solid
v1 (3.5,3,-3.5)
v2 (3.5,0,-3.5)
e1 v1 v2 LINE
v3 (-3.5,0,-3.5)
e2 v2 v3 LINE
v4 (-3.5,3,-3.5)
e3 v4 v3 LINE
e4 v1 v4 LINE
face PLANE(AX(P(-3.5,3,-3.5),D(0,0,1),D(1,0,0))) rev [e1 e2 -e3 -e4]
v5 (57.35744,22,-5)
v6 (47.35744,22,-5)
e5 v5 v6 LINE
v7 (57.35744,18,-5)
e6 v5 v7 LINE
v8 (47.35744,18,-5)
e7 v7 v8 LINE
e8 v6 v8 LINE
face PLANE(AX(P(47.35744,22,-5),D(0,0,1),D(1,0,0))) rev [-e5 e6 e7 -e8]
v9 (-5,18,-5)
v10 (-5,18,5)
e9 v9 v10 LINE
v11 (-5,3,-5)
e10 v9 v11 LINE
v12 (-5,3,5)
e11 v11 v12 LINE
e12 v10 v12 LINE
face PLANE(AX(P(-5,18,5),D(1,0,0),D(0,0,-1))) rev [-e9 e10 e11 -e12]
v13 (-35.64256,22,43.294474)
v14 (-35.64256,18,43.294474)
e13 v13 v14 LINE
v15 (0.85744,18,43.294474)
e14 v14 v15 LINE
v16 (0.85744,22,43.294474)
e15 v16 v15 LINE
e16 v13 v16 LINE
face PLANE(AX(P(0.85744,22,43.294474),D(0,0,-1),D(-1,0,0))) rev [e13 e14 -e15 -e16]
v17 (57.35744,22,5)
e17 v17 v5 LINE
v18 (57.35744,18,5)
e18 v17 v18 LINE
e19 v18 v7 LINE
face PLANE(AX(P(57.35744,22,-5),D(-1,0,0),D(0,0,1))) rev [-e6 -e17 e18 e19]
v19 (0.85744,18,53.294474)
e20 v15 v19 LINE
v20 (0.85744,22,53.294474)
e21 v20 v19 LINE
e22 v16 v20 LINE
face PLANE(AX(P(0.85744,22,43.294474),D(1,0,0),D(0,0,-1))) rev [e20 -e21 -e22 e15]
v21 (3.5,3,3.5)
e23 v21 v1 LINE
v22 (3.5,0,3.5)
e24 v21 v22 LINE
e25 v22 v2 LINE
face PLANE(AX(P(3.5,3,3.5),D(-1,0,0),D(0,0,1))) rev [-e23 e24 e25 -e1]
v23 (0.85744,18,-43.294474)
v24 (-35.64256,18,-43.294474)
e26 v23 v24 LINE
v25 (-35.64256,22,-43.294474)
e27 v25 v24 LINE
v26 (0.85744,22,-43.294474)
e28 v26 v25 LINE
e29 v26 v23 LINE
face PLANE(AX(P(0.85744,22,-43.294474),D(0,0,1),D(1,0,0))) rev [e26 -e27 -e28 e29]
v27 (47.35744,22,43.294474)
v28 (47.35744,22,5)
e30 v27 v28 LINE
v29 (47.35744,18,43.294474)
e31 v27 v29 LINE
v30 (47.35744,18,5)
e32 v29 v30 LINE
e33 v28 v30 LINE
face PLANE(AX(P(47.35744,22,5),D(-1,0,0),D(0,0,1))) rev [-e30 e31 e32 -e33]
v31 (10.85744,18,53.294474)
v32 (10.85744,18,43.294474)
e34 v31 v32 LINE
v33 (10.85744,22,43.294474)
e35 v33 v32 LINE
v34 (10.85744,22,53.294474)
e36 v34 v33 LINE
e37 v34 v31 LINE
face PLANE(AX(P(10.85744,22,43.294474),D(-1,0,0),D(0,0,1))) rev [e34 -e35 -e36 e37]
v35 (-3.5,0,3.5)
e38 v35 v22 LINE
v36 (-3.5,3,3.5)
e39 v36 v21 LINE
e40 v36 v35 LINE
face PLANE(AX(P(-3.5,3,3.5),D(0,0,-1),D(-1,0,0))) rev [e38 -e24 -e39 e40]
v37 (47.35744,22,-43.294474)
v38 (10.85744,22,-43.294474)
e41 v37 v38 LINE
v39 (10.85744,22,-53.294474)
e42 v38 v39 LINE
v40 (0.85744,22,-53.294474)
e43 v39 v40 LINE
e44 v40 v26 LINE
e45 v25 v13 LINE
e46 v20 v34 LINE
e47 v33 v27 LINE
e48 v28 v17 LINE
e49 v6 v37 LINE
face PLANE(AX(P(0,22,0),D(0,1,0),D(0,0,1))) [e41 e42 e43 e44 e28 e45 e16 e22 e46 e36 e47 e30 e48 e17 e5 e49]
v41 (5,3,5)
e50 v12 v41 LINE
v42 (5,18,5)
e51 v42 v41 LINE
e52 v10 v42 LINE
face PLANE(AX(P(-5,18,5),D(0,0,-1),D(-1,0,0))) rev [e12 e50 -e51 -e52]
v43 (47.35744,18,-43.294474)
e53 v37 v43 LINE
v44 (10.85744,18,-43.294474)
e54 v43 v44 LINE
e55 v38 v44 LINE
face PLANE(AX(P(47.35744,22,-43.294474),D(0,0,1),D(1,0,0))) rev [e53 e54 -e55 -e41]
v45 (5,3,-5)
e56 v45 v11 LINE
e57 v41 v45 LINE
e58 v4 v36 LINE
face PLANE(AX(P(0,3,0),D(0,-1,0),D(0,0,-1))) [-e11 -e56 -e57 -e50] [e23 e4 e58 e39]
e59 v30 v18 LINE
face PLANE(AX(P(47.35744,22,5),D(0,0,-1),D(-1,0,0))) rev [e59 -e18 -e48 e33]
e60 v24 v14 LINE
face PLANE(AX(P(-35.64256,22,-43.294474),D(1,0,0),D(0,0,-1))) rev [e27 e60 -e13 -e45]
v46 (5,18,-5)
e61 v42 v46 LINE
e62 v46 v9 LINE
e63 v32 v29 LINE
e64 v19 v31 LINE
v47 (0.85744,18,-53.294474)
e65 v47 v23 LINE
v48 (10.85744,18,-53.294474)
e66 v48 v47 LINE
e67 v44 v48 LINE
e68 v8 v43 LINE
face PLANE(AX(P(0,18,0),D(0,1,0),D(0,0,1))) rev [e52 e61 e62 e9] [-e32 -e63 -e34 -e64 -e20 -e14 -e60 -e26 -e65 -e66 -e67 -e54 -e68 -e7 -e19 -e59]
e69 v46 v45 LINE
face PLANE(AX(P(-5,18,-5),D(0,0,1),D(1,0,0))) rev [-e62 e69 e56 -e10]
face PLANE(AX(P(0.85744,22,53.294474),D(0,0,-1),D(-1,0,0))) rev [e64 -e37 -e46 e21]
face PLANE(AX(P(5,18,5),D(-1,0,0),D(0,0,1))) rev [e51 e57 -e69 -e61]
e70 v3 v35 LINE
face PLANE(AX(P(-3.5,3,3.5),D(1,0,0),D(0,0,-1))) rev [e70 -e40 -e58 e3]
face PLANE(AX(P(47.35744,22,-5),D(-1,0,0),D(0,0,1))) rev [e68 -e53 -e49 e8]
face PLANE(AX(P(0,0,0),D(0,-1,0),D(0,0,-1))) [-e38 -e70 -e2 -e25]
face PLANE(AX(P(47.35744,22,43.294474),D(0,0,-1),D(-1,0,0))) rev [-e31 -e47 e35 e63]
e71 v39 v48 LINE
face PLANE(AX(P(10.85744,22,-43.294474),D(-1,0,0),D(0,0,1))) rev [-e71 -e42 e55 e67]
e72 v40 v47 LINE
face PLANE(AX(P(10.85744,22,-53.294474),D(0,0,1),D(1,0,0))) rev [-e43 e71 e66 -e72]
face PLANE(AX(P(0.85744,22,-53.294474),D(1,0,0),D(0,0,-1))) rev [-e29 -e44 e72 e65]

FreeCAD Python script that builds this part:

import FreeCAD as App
import Part
import Sketcher

V = App.Vector

doc = App.newDocument("Part")
params = doc.addObject("Spreadsheet::Sheet", "Params")
for row, (alias, value) in enumerate([
    ("sketch1_width", "7 mm"),
    ("pad1_length", "3 mm"),
    ("sketch2_width", "10 mm"),
    ("pad2_length", "15 mm"),
    ("sketch3_width", "10 mm"),
    ("sketch3_width2", "36.5 mm"),
    ("pad3_length", "4 mm"),
], start=1):
    params.set(f"A{row}", alias)
    params.set(f"B{row}", "=" + value)
    params.setAlias(f"B{row}", alias)

body = doc.addObject("PartDesign::Body", "Body")

# Sketch on XZ plane
sketch1 = doc.addObject("Sketcher::SketchObject", "Sketch")
body.addObject(sketch1)
sketch1.AttachmentSupport = (doc.XZ_Plane, [""])
sketch1.MapMode = "FlatFace"
sketch1.addGeometry([
    Part.LineSegment(V(-4, -4, 0), V(-4, 4, 0)),
    Part.LineSegment(V(-4, 4, 0), V(4, 4, 0)),
    Part.LineSegment(V(4, 4, 0), V(4, -4, 0)),
    Part.LineSegment(V(4, -4, 0), V(-4, -4, 0)),
], False)
sketch1.addConstraint([
    Sketcher.Constraint("Coincident", 0, 2, 1, 1),
    Sketcher.Constraint("Coincident", 1, 2, 2, 1),
    Sketcher.Constraint("Coincident", 2, 2, 3, 1),
    Sketcher.Constraint("Coincident", 3, 2, 0, 1),
    Sketcher.Constraint("Vertical", 0),
    Sketcher.Constraint("Horizontal", 1),
    Sketcher.Constraint("Vertical", 2),
    Sketcher.Constraint("Horizontal", 3),
    Sketcher.Constraint("Symmetric", 0, 2, 2, 2, -1, 1),
    Sketcher.Constraint("Equal", 3, 0),
    Sketcher.Constraint("DistanceX", 1, 1, 1, 2, 7.0),
])
sketch1.setExpression("Constraints[10]", "Params.sketch1_width")
pad1 = doc.addObject("PartDesign::Pad", "Pad")
body.addObject(pad1)
pad1.Profile = sketch1
pad1.setExpression("Length", "Params.pad1_length")
pad1.Reversed = True

# Sketch on XZ plane
sketch2 = doc.addObject("Sketcher::SketchObject", "Sketch001")
body.addObject(sketch2)
sketch2.AttachmentSupport = (doc.XZ_Plane, [""])
sketch2.MapMode = "FlatFace"
sketch2.AttachmentOffset = App.Placement(V(0, 0, -3), App.Rotation())
sketch2.addGeometry([
    Part.LineSegment(V(-5, -5, 0), V(-5, 5, 0)),
    Part.LineSegment(V(-5, 5, 0), V(5, 5, 0)),
    Part.LineSegment(V(5, 5, 0), V(5, -5, 0)),
    Part.LineSegment(V(5, -5, 0), V(-5, -5, 0)),
], False)
sketch2.addConstraint([
    Sketcher.Constraint("Coincident", 0, 2, 1, 1),
    Sketcher.Constraint("Coincident", 1, 2, 2, 1),
    Sketcher.Constraint("Coincident", 2, 2, 3, 1),
    Sketcher.Constraint("Coincident", 3, 2, 0, 1),
    Sketcher.Constraint("Vertical", 0),
    Sketcher.Constraint("Horizontal", 1),
    Sketcher.Constraint("Vertical", 2),
    Sketcher.Constraint("Horizontal", 3),
    Sketcher.Constraint("Symmetric", 0, 2, 2, 2, -1, 1),
    Sketcher.Constraint("Equal", 3, 0),
    Sketcher.Constraint("DistanceX", 1, 1, 1, 2, 10.0),
])
sketch2.setExpression("Constraints[10]", "Params.sketch2_width")
pad2 = doc.addObject("PartDesign::Pad", "Pad001")
body.addObject(pad2)
pad2.Profile = sketch2
pad2.setExpression("Length", "Params.pad2_length")
pad2.Reversed = True

# Sketch on XZ plane
sketch3 = doc.addObject("Sketcher::SketchObject", "Sketch002")
body.addObject(sketch3)
sketch3.AttachmentSupport = (doc.XZ_Plane, [""])
sketch3.MapMode = "FlatFace"
sketch3.AttachmentOffset = App.Placement(V(0, 0, -18), App.Rotation())
sketch3.addGeometry([
    Part.LineSegment(V(11, -43, 0), V(11, -53, 0)),  # 0
    Part.LineSegment(V(11, -53, 0), V(1, -53, 0)),  # 1
    Part.LineSegment(V(1, -53, 0), V(1, -43, 0)),  # 2
    Part.LineSegment(V(1, -43, 0), V(-36, -43, 0)),  # 3
    Part.LineSegment(V(-36, -43, 0), V(-36, 43, 0)),  # 4
    Part.LineSegment(V(-36, 43, 0), V(1, 43, 0)),  # 5
    Part.LineSegment(V(1, 43, 0), V(1, 53, 0)),  # 6
    Part.LineSegment(V(1, 53, 0), V(11, 53, 0)),  # 7
    Part.LineSegment(V(11, 53, 0), V(11, 43, 0)),  # 8
    Part.LineSegment(V(11, 43, 0), V(47, 43, 0)),  # 9
    Part.LineSegment(V(47, 43, 0), V(47, 5, 0)),  # 10
    Part.LineSegment(V(47, 5, 0), V(57, 5, 0)),  # 11
    Part.LineSegment(V(57, 5, 0), V(57, -5, 0)),  # 12
    Part.LineSegment(V(57, -5, 0), V(47, -5, 0)),  # 13
    Part.LineSegment(V(47, -5, 0), V(47, -43, 0)),  # 14
    Part.LineSegment(V(47, -43, 0), V(11, -43, 0)),  # 15
], False)
sketch3.addConstraint([
    Sketcher.Constraint("Coincident", 0, 2, 1, 1),
    Sketcher.Constraint("Coincident", 1, 2, 2, 1),
    Sketcher.Constraint("Coincident", 2, 2, 3, 1),
    Sketcher.Constraint("Coincident", 3, 2, 4, 1),
    Sketcher.Constraint("Coincident", 4, 2, 5, 1),
    Sketcher.Constraint("Coincident", 5, 2, 6, 1),
    Sketcher.Constraint("Coincident", 6, 2, 7, 1),
    Sketcher.Constraint("Coincident", 7, 2, 8, 1),
    Sketcher.Constraint("Coincident", 8, 2, 9, 1),
    Sketcher.Constraint("Coincident", 9, 2, 10, 1),
    Sketcher.Constraint("Coincident", 10, 2, 11, 1),
    Sketcher.Constraint("Coincident", 11, 2, 12, 1),
    Sketcher.Constraint("Coincident", 12, 2, 13, 1),
    Sketcher.Constraint("Coincident", 13, 2, 14, 1),
    Sketcher.Constraint("Coincident", 14, 2, 15, 1),
    Sketcher.Constraint("Coincident", 15, 2, 0, 1),
    Sketcher.Constraint("Vertical", 0),
    Sketcher.Constraint("Horizontal", 1),
    Sketcher.Constraint("Vertical", 2),
    Sketcher.Constraint("Horizontal", 3),
    Sketcher.Constraint("Vertical", 4),
    Sketcher.Constraint("Horizontal", 5),
    Sketcher.Constraint("Vertical", 6),
    Sketcher.Constraint("Horizontal", 7),
    Sketcher.Constraint("Vertical", 8),
    Sketcher.Constraint("Horizontal", 9),
    Sketcher.Constraint("Vertical", 10),
    Sketcher.Constraint("Horizontal", 11),
    Sketcher.Constraint("Vertical", 12),
    Sketcher.Constraint("Horizontal", 13),
    Sketcher.Constraint("Vertical", 14),
    Sketcher.Constraint("Horizontal", 15),
    Sketcher.Constraint("Symmetric", 2, 2, 5, 2, -1),
    Sketcher.Constraint("Symmetric", 0, 2, 7, 2, -1),
    Sketcher.Constraint("Symmetric", 10, 2, 13, 2, -1),
    Sketcher.Constraint("Horizontal", 5, 2, 8, 2),
    Sketcher.Constraint("Horizontal", 3, 2, 14, 2),
    Sketcher.Constraint("Equal", 5, 9),
    Sketcher.Constraint("Equal", 7, 11),
    Sketcher.Constraint("Equal", 13, 0),
    Sketcher.Constraint("Equal", 8, 12),
    Sketcher.Constraint("DistanceX", 1, 2, 1, 1, 10.0),
    Sketcher.Constraint("DistanceX", 3, 2, 3, 1, 36.5),
    Sketcher.Constraint("DistanceY", 4, 1, 4, 2, 86.588947),
    Sketcher.Constraint("DistanceX", -1, 1, 0, 2, 10.85744),
])
sketch3.setExpression("Constraints[41]", "Params.sketch3_width")
sketch3.setExpression("Constraints[42]", "Params.sketch3_width2")
pad3 = doc.addObject("PartDesign::Pad", "Pad002")
body.addObject(pad3)
pad3.Profile = sketch3
pad3.setExpression("Length", "Params.pad3_length")
pad3.Reversed = True

doc.recompute()
